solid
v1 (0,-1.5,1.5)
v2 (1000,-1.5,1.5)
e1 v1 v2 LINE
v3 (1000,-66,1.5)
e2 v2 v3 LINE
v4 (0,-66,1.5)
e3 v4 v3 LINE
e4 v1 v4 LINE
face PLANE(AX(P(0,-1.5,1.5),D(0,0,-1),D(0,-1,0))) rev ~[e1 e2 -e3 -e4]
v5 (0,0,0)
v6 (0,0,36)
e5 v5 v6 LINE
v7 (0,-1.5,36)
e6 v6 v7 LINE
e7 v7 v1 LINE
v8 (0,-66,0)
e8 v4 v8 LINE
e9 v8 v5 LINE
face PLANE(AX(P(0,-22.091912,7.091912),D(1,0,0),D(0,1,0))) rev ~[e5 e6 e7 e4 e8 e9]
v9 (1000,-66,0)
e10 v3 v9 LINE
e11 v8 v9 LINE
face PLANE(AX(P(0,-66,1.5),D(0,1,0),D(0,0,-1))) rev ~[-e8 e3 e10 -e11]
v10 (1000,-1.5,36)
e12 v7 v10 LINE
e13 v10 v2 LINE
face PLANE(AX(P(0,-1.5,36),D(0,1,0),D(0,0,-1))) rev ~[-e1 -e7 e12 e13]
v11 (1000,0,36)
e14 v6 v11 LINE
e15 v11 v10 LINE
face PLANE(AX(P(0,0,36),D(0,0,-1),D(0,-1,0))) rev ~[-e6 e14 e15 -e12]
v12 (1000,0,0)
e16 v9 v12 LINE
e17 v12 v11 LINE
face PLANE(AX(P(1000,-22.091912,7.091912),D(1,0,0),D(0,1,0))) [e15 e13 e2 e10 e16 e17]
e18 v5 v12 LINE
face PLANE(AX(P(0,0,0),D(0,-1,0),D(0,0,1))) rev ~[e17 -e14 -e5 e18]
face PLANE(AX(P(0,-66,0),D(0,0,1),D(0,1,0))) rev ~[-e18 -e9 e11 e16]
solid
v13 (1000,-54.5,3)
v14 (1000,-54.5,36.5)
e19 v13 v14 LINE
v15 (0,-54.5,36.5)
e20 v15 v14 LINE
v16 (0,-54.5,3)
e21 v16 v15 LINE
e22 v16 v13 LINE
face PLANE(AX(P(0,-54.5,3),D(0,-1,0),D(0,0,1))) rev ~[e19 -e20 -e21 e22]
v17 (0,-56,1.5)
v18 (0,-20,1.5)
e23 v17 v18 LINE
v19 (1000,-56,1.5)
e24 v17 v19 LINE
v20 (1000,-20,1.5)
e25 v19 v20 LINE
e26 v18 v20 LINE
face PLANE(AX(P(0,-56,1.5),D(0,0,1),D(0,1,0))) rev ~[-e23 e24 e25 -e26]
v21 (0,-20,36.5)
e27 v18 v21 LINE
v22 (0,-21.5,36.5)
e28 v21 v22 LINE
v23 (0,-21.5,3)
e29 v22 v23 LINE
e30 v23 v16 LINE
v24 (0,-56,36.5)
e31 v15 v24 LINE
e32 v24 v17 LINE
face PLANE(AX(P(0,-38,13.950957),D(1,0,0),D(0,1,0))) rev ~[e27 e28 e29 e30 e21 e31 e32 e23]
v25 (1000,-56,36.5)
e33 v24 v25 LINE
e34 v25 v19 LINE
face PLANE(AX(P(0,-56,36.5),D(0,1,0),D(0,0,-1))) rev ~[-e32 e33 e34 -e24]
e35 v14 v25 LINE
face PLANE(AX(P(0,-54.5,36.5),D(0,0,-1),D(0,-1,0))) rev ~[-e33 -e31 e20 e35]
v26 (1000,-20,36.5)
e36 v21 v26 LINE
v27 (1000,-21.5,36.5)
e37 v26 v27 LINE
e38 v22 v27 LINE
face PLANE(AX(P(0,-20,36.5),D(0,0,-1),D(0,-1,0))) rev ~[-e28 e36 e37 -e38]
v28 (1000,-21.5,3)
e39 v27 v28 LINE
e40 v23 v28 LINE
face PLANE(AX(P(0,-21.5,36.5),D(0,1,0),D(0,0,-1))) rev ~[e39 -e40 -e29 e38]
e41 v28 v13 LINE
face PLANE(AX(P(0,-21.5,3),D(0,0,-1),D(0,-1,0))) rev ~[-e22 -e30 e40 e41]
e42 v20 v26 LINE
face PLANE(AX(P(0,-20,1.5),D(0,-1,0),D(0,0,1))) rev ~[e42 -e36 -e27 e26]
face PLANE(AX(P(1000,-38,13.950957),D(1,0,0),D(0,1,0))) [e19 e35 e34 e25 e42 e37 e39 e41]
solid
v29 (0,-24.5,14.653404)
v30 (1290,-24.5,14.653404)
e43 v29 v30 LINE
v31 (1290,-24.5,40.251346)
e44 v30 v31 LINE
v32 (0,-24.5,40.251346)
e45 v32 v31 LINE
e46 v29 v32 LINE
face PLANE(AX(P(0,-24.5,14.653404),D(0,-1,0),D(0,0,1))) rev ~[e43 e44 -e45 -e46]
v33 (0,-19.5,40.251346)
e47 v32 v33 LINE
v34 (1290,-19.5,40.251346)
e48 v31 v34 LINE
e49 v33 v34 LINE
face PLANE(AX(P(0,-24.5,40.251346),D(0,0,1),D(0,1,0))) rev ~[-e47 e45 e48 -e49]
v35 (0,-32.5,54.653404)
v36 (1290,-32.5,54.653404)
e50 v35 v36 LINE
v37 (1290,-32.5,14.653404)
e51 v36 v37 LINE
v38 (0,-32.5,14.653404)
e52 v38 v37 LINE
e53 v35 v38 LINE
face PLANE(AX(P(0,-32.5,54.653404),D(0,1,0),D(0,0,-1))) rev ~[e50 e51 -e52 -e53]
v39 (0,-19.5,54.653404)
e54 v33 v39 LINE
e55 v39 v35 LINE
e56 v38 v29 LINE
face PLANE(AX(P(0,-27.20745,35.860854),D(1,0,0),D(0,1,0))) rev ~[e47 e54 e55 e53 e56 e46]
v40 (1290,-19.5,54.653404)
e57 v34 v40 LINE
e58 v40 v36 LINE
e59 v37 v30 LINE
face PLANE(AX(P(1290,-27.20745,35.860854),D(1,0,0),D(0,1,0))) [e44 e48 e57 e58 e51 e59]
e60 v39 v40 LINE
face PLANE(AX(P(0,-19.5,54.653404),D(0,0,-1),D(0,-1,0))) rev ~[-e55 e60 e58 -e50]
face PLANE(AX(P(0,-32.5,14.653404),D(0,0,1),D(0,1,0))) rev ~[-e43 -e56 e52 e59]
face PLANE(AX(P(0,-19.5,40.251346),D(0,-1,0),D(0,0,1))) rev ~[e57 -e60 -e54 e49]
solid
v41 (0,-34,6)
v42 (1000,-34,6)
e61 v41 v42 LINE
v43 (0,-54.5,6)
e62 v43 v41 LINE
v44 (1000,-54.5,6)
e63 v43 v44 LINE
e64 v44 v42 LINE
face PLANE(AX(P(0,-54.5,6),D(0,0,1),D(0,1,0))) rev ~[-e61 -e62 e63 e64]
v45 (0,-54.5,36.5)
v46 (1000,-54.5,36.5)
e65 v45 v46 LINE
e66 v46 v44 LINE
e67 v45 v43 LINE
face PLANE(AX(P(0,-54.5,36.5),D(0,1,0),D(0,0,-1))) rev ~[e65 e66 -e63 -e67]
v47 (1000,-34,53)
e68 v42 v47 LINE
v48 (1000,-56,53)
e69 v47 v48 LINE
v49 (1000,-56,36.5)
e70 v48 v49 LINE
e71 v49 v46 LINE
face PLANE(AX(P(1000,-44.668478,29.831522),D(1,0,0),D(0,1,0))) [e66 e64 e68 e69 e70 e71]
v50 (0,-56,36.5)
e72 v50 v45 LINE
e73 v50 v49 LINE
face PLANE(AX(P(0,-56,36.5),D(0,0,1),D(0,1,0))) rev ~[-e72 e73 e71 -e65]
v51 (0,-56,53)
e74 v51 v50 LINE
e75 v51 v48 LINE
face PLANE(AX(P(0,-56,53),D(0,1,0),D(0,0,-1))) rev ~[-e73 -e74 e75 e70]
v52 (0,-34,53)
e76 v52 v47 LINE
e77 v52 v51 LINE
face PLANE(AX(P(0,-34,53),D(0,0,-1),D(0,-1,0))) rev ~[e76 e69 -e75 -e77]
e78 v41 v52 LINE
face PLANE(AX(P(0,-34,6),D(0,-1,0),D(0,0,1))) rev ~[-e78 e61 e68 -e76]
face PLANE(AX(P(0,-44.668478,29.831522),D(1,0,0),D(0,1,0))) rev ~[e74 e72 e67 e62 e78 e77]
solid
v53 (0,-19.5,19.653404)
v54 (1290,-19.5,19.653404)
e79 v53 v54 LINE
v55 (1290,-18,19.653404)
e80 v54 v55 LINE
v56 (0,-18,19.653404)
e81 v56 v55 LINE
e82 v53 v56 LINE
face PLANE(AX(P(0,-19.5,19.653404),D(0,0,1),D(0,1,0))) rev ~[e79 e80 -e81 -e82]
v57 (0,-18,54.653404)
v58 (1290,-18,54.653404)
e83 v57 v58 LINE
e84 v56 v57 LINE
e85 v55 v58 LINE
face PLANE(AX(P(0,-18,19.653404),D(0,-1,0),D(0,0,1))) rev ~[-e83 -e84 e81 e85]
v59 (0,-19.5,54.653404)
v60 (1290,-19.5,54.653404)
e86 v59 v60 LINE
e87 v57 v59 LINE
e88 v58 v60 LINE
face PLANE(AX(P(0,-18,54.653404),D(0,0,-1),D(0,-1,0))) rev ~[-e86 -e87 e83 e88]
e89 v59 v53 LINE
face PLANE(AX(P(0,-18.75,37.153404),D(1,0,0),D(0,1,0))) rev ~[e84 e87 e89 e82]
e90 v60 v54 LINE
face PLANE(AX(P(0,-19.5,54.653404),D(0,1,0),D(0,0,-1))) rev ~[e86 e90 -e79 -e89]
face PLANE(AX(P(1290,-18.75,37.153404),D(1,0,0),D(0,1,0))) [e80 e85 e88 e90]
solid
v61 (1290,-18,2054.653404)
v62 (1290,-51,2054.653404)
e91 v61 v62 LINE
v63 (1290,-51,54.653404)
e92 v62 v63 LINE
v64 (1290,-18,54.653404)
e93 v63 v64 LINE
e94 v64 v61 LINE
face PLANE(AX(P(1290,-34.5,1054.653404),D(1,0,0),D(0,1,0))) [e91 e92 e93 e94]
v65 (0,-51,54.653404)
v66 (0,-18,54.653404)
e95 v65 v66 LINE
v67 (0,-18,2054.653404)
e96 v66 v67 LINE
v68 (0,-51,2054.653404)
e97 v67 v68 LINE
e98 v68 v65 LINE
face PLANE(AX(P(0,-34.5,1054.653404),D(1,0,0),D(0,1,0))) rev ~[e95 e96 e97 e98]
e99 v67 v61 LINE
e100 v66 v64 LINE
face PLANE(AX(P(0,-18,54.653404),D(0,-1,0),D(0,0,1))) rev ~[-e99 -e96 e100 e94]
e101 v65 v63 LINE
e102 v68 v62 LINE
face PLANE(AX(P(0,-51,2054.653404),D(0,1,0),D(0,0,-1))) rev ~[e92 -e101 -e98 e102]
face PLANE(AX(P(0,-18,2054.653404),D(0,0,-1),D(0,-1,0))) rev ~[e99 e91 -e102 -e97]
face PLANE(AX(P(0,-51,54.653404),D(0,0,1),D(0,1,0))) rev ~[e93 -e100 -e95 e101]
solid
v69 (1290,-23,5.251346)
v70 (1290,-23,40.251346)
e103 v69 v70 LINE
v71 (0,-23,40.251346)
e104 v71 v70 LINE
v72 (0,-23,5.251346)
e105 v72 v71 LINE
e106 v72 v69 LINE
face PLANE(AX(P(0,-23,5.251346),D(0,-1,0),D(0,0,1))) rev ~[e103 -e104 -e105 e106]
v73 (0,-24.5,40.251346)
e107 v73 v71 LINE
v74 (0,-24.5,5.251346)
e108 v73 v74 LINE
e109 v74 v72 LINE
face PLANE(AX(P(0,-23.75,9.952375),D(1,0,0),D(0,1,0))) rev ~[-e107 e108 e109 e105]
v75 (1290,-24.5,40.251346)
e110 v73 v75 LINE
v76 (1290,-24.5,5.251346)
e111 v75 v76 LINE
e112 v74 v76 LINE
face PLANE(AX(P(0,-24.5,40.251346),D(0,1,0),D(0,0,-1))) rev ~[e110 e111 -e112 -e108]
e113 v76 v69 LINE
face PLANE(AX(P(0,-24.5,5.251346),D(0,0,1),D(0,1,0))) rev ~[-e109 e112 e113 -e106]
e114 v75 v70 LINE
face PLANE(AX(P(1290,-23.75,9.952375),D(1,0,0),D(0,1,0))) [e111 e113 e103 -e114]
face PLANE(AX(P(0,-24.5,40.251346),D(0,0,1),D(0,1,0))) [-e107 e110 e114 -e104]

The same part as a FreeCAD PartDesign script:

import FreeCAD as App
import Part
import Sketcher
from FreeCAD import Vector


def add_polygon(sketch, points):
    """Adds a closed chain of lines whose ends are joined by coincident constraints."""
    first, n = sketch.GeometryCount, len(points)
    for a, b in zip(points, points[1:] + points[:1]):
        sketch.addGeometry(Part.LineSegment(App.Vector(*a, 0), App.Vector(*b, 0)), False)
    for i in range(n):
        sketch.addConstraint(Sketcher.Constraint("Coincident", first + i, 2, first + (i + 1) % n, 1))

doc = App.newDocument("Part")
body = doc.addObject("PartDesign::Body", "Body")
body.AllowCompound = True

sketch1 = body.newObject("Sketcher::SketchObject", "Sketch")
sketch1.AttachmentSupport = (doc.getObject("YZ_Plane"), [""])
sketch1.MapMode = "FlatFace"
add_polygon(sketch1, [(-18, 19.7), (-18, 54.7), (-19.5, 54.7), (-19.5, 19.7)])
add_polygon(sketch1, [(-24.5, 5.3), (-23, 5.3), (-23, 40.3), (-24.5, 40.3)])
sketch1.addConstraint(Sketcher.Constraint("Vertical", 0))
sketch1.addConstraint(Sketcher.Constraint("Horizontal", 1))
sketch1.addConstraint(Sketcher.Constraint("Vertical", 2))
sketch1.addConstraint(Sketcher.Constraint("Horizontal", 3))
sketch1.addConstraint(Sketcher.Constraint("Horizontal", 4))
sketch1.addConstraint(Sketcher.Constraint("Vertical", 5))
sketch1.addConstraint(Sketcher.Constraint("Horizontal", 6))
sketch1.addConstraint(Sketcher.Constraint("Vertical", 7))
sketch1.addConstraint(Sketcher.Constraint("Equal", 3, 4))
sketch1.addConstraint(Sketcher.Constraint("Equal", 2, 5))
sketch1.addConstraint(Sketcher.Constraint("DistanceY", 0, 1, 0, 2, 35.0))
sketch1.addConstraint(Sketcher.Constraint("DistanceX", 1, 2, 1, 1, 1.5))
sketch1.addConstraint(Sketcher.Constraint("DistanceX", 0, 2, -1, 1, 18.0))
sketch1.addConstraint(Sketcher.Constraint("DistanceX", 4, 2, -1, 1, 23.0))
sketch1.addConstraint(Sketcher.Constraint("DistanceY", 4, 2, 1, 2, 49.402058))
sketch1.addConstraint(Sketcher.Constraint("DistanceY", -1, 1, 0, 2, 54.653404))
pad1 = body.newObject("PartDesign::Pad", "Pad")
pad1.Profile = sketch1
pad1.Length = 1290
body2 = doc.addObject("PartDesign::Body", "Body001")

sketch2 = body2.newObject("Sketcher::SketchObject", "Sketch001")
sketch2.AttachmentSupport = (doc.getObject("YZ_Plane001"), [""])
sketch2.MapMode = "FlatFace"
add_polygon(sketch2, [(-20, 40), (-20, 55), (-32, 55), (-32, 15), (-24, 15), (-24, 40)])
sketch2.addConstraint(Sketcher.Constraint("Vertical", 0))
sketch2.addConstraint(Sketcher.Constraint("Horizontal", 1))
sketch2.addConstraint(Sketcher.Constraint("Vertical", 2))
sketch2.addConstraint(Sketcher.Constraint("Horizontal", 3))
sketch2.addConstraint(Sketcher.Constraint("Vertical", 4))
sketch2.addConstraint(Sketcher.Constraint("Horizontal", 5))
sketch2.addConstraint(Sketcher.Constraint("DistanceX", 1, 2, 1, 1, 13.0))
sketch2.addConstraint(Sketcher.Constraint("DistanceX", 3, 1, 3, 2, 8.0))
sketch2.addConstraint(Sketcher.Constraint("DistanceY", 2, 2, 2, 1, 40.0))
sketch2.addConstraint(Sketcher.Constraint("DistanceX", 0, 2, -1, 1, 19.5))
sketch2.addConstraint(Sketcher.Constraint("DistanceY", 0, 1, 0, 2, 14.402058))
sketch2.addConstraint(Sketcher.Constraint("DistanceY", -1, 1, 0, 2, 54.653404))
pad2 = body2.newObject("PartDesign::Pad", "Pad001")
pad2.Profile = sketch2
pad2.Length = 1290
body3 = doc.addObject("PartDesign::Body", "Body002")
body3.AllowCompound = True

sketch3 = body3.newObject("Sketcher::SketchObject", "Sketch002")
sketch3.AttachmentSupport = (doc.getObject("YZ_Plane002"), [""])
sketch3.MapMode = "FlatFace"
add_polygon(sketch3, [(-66, 0), (0, 0), (0, 36), (-1.5, 36), (-1.5, 1.5), (-66, 1.5)])
add_polygon(sketch3, [(-56, 53), (-56, 36.5), (-54.5, 36.5), (-54.5, 6), (-34, 6), (-34, 53)])
sketch3.addConstraint(Sketcher.Constraint("Horizontal", 0))
sketch3.addConstraint(Sketcher.Constraint("Vertical", 1))
sketch3.addConstraint(Sketcher.Constraint("Horizontal", 2))
sketch3.addConstraint(Sketcher.Constraint("Vertical", 3))
sketch3.addConstraint(Sketcher.Constraint("Horizontal", 4))
sketch3.addConstraint(Sketcher.Constraint("Vertical", 5))
sketch3.addConstraint(Sketcher.Constraint("Vertical", 6))
sketch3.addConstraint(Sketcher.Constraint("Horizontal", 7))
sketch3.addConstraint(Sketcher.Constraint("Vertical", 8))
sketch3.addConstraint(Sketcher.Constraint("Horizontal", 9))
sketch3.addConstraint(Sketcher.Constraint("Vertical", 10))
sketch3.addConstraint(Sketcher.Constraint("Horizontal", 11))
sketch3.addConstraint(Sketcher.Constraint("Coincident", 0, 2, -1, 1))
sketch3.addConstraint(Sketcher.Constraint("Equal", 2, 7))
sketch3.addConstraint(Sketcher.Constraint("Equal", 7, 5))
sketch3.addConstraint(Sketcher.Constraint("DistanceX", 0, 1, 0, 2, 66.0))
sketch3.addConstraint(Sketcher.Constraint("DistanceX", 11, 2, 11, 1, 22.0))
sketch3.addConstraint(Sketcher.Constraint("DistanceY", 1, 1, 1, 2, 36.0))
sketch3.addConstraint(Sketcher.Constraint("DistanceY", 10, 1, 10, 2, 47.0))
sketch3.addConstraint(Sketcher.Constraint("DistanceX", 2, 2, 2, 1, 1.5))
sketch3.addConstraint(Sketcher.Constraint("DistanceY", 6, 2, 6, 1, 16.5))
sketch3.addConstraint(Sketcher.Constraint("DistanceX", 6, 2, -1, 1, 56.0))
sketch3.addConstraint(Sketcher.Constraint("DistanceY", -1, 1, 8, 2, 6.0))
pad3 = body3.newObject("PartDesign::Pad", "Pad002")
pad3.Profile = sketch3
pad3.Length = 1000
body4 = doc.addObject("PartDesign::Body", "Body003")

sketch4 = body4.newObject("Sketcher::SketchObject", "Sketch003")
sketch4.AttachmentSupport = (doc.getObject("YZ_Plane003"), [""])
sketch4.MapMode = "FlatFace"
add_polygon(sketch4, [(-56, 36.5), (-56, 1.5), (-20, 1.5), (-20, 36.5), (-21.5, 36.5), (-21.5, 3), (-54.5, 3), (-54.5, 36.5)])
sketch4.addConstraint(Sketcher.Constraint("Vertical", 0))
sketch4.addConstraint(Sketcher.Constraint("Horizontal", 1))
sketch4.addConstraint(Sketcher.Constraint("Vertical", 2))
sketch4.addConstraint(Sketcher.Constraint("Horizontal", 3))
sketch4.addConstraint(Sketcher.Constraint("Vertical", 4))
sketch4.addConstraint(Sketcher.Constraint("Horizontal", 5))
sketch4.addConstraint(Sketcher.Constraint("Vertical", 6))
sketch4.addConstraint(Sketcher.Constraint("Horizontal", 7))
sketch4.addConstraint(Sketcher.Constraint("Horizontal", 3, 2, 6, 2))
sketch4.addConstraint(Sketcher.Constraint("Equal", 3, 7))
sketch4.addConstraint(Sketcher.Constraint("DistanceX", 1, 1, 1, 2, 36.0))
sketch4.addConstraint(Sketcher.Constraint("DistanceX", 5, 2, 5, 1, 33.0))
sketch4.addConstraint(Sketcher.Constraint("DistanceY", 0, 2, 0, 1, 35.0))
sketch4.addConstraint(Sketcher.Constraint("DistanceY", 4, 2, 4, 1, 33.5))
sketch4.addConstraint(Sketcher.Constraint("DistanceX", 0, 2, -1, 1, 56.0))
sketch4.addConstraint(Sketcher.Constraint("DistanceY", -1, 1, 4, 2, 3.0))
pad4 = body4.newObject("PartDesign::Pad", "Pad003")
pad4.Profile = sketch4
pad4.Length = 1000
body5 = doc.addObject("PartDesign::Body", "Body004")

sketch5 = body5.newObject("Sketcher::SketchObject", "Sketch004")
sketch5.AttachmentSupport = (doc.getObject("YZ_Plane004"), [""])
sketch5.MapMode = "FlatFace"
add_polygon(sketch5, [(-18, 55), (-18, 2055), (-51, 2055), (-51, 55)])
sketch5.addConstraint(Sketcher.Constraint("Vertical", 0))
sketch5.addConstraint(Sketcher.Constraint("Horizontal", 1))
sketch5.addConstraint(Sketcher.Constraint("Vertical", 2))
sketch5.addConstraint(Sketcher.Constraint("Horizontal", 3))
sketch5.addConstraint(Sketcher.Constraint("DistanceX", 1, 2, 1, 1, 33.0))
sketch5.addConstraint(Sketcher.Constraint("DistanceY", 0, 1, 0, 2, 2000.0))
sketch5.addConstraint(Sketcher.Constraint("DistanceX", 0, 2, -1, 1, 18.0))
sketch5.addConstraint(Sketcher.Constraint("DistanceY", -1, 1, 0, 2, 2054.653404))
pad5 = body5.newObject("PartDesign::Pad", "Pad004")
pad5.Profile = sketch5
pad5.Length = 1290

doc.recompute()
